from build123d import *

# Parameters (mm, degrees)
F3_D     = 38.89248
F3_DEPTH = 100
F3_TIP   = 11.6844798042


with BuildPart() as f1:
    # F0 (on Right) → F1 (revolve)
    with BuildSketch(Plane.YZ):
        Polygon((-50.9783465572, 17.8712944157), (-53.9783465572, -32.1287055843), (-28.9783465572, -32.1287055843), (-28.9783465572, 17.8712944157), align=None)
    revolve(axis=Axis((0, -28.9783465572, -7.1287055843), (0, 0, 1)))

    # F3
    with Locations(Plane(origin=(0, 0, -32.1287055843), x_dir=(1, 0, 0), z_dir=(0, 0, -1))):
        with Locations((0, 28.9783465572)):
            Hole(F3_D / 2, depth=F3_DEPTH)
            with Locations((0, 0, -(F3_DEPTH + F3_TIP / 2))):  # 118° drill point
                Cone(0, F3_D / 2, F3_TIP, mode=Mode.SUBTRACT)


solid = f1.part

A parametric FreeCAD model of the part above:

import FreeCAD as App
import Part
import Sketcher
Q = App.Units.Quantity

doc = App.newDocument("Part")
params = doc.addObject("Spreadsheet::Sheet", "Params")
for row, (alias, value) in enumerate([
    ("sketch1_width", "25 mm"),
    ("sketch1_width2", "22 mm"),
    ("sketch1_height", "50 mm"),
    ("revolution_angle", "360 deg"),
    ("hole_diameter", "38.89248 mm"),
    ("hole_depth", "100 mm"),
], start=1):
    params.set(f"A{row}", alias)
    params.set(f"B{row}", "=" + value)
    params.setAlias(f"B{row}", alias)

body = doc.addObject("PartDesign::Body", "Body")

sketch1 = body.newObject("Sketcher::SketchObject", "Sketch")
sketch1.AttachmentSupport = (doc.getObject("YZ_Plane"), [""])
sketch1.MapMode = "FlatFace"
sketch1.addGeometry(Part.LineSegment(App.Vector(-51, 18, 0), App.Vector(-54, -32, 0)), False)
sketch1.addGeometry(Part.LineSegment(App.Vector(-54, -32, 0), App.Vector(-29, -32, 0)), False)
sketch1.addGeometry(Part.LineSegment(App.Vector(-29, -32, 0), App.Vector(-29, 18, 0)), False)
sketch1.addGeometry(Part.LineSegment(App.Vector(-29, 18, 0), App.Vector(-51, 18, 0)), False)
sketch1.addGeometry(Part.LineSegment(App.Vector(-29, -32, 0), App.Vector(-29, 18, 0)), True)
sketch1.addConstraint(Sketcher.Constraint("Coincident", 0, 2, 1, 1))
sketch1.addConstraint(Sketcher.Constraint("Coincident", 1, 2, 2, 1))
sketch1.addConstraint(Sketcher.Constraint("Coincident", 2, 2, 3, 1))
sketch1.addConstraint(Sketcher.Constraint("Coincident", 3, 2, 0, 1))
sketch1.addConstraint(Sketcher.Constraint("Horizontal", 1))
sketch1.addConstraint(Sketcher.Constraint("Vertical", 2))
sketch1.addConstraint(Sketcher.Constraint("Horizontal", 3))
sketch1.addConstraint(Sketcher.Constraint("Vertical", 4))
sketch1.addConstraint(Sketcher.Constraint("Coincident", 4, 1, 1, 2))
sketch1.addConstraint(Sketcher.Constraint("Horizontal", 3, 2, 4, 2))
sketch1.addConstraint(Sketcher.Constraint("DistanceX", 1, 1, 1, 2, Q("25 mm")))
sketch1.addConstraint(Sketcher.Constraint("DistanceX", 3, 2, 3, 1, Q("22 mm")))
sketch1.addConstraint(Sketcher.Constraint("DistanceY", 2, 1, 2, 2, Q("50 mm")))
sketch1.addConstraint(Sketcher.Constraint("DistanceX", 0, 2, -1, 1, Q("53.978347 mm")))
sketch1.addConstraint(Sketcher.Constraint("DistanceY", 0, 2, -1, 1, Q("32.128706 mm")))
sketch1.setExpression("Constraints[10]", "Params.sketch1_width")
sketch1.setExpression("Constraints[11]", "Params.sketch1_width2")
sketch1.setExpression("Constraints[12]", "Params.sketch1_height")
revolution = body.newObject("PartDesign::Revolution", "Revolution")
revolution.Profile = sketch1
revolution.ReferenceAxis = (sketch1, ["Axis0"])
revolution.setExpression("Angle", "Params.revolution_angle")

sketch2 = body.newObject("Sketcher::SketchObject", "Sketch001")
sketch2.AttachmentSupport = (doc.getObject("XY_Plane"), [""])
sketch2.MapMode = "FlatFace"
sketch2.AttachmentOffset = App.Placement(App.Vector(0, 0, -32.128706), App.Rotation())
sketch2.addGeometry(Part.Circle(App.Vector(0, -29, 0), App.Vector(0, 0, 1), 19), False)
sketch2.addConstraint(Sketcher.Constraint("PointOnObject", 0, 3, -2))
sketch2.addConstraint(Sketcher.Constraint("Diameter", 0, Q("38.89248 mm")))
sketch2.addConstraint(Sketcher.Constraint("DistanceY", 0, 3, -1, 1, Q("28.978347 mm")))
doc.recompute()
hole = body.newObject("PartDesign::Hole", "Hole")
hole.Profile = sketch2
hole.ThreadType = "None"
hole.setExpression("Diameter", "Params.hole_diameter")
hole.DepthType = "Dimension"
hole.setExpression("Depth", "Params.hole_depth")
hole.DrillPoint = "Angled"
hole.DrillPointAngle = 118
hole.Reversed = True

doc.recompute()
